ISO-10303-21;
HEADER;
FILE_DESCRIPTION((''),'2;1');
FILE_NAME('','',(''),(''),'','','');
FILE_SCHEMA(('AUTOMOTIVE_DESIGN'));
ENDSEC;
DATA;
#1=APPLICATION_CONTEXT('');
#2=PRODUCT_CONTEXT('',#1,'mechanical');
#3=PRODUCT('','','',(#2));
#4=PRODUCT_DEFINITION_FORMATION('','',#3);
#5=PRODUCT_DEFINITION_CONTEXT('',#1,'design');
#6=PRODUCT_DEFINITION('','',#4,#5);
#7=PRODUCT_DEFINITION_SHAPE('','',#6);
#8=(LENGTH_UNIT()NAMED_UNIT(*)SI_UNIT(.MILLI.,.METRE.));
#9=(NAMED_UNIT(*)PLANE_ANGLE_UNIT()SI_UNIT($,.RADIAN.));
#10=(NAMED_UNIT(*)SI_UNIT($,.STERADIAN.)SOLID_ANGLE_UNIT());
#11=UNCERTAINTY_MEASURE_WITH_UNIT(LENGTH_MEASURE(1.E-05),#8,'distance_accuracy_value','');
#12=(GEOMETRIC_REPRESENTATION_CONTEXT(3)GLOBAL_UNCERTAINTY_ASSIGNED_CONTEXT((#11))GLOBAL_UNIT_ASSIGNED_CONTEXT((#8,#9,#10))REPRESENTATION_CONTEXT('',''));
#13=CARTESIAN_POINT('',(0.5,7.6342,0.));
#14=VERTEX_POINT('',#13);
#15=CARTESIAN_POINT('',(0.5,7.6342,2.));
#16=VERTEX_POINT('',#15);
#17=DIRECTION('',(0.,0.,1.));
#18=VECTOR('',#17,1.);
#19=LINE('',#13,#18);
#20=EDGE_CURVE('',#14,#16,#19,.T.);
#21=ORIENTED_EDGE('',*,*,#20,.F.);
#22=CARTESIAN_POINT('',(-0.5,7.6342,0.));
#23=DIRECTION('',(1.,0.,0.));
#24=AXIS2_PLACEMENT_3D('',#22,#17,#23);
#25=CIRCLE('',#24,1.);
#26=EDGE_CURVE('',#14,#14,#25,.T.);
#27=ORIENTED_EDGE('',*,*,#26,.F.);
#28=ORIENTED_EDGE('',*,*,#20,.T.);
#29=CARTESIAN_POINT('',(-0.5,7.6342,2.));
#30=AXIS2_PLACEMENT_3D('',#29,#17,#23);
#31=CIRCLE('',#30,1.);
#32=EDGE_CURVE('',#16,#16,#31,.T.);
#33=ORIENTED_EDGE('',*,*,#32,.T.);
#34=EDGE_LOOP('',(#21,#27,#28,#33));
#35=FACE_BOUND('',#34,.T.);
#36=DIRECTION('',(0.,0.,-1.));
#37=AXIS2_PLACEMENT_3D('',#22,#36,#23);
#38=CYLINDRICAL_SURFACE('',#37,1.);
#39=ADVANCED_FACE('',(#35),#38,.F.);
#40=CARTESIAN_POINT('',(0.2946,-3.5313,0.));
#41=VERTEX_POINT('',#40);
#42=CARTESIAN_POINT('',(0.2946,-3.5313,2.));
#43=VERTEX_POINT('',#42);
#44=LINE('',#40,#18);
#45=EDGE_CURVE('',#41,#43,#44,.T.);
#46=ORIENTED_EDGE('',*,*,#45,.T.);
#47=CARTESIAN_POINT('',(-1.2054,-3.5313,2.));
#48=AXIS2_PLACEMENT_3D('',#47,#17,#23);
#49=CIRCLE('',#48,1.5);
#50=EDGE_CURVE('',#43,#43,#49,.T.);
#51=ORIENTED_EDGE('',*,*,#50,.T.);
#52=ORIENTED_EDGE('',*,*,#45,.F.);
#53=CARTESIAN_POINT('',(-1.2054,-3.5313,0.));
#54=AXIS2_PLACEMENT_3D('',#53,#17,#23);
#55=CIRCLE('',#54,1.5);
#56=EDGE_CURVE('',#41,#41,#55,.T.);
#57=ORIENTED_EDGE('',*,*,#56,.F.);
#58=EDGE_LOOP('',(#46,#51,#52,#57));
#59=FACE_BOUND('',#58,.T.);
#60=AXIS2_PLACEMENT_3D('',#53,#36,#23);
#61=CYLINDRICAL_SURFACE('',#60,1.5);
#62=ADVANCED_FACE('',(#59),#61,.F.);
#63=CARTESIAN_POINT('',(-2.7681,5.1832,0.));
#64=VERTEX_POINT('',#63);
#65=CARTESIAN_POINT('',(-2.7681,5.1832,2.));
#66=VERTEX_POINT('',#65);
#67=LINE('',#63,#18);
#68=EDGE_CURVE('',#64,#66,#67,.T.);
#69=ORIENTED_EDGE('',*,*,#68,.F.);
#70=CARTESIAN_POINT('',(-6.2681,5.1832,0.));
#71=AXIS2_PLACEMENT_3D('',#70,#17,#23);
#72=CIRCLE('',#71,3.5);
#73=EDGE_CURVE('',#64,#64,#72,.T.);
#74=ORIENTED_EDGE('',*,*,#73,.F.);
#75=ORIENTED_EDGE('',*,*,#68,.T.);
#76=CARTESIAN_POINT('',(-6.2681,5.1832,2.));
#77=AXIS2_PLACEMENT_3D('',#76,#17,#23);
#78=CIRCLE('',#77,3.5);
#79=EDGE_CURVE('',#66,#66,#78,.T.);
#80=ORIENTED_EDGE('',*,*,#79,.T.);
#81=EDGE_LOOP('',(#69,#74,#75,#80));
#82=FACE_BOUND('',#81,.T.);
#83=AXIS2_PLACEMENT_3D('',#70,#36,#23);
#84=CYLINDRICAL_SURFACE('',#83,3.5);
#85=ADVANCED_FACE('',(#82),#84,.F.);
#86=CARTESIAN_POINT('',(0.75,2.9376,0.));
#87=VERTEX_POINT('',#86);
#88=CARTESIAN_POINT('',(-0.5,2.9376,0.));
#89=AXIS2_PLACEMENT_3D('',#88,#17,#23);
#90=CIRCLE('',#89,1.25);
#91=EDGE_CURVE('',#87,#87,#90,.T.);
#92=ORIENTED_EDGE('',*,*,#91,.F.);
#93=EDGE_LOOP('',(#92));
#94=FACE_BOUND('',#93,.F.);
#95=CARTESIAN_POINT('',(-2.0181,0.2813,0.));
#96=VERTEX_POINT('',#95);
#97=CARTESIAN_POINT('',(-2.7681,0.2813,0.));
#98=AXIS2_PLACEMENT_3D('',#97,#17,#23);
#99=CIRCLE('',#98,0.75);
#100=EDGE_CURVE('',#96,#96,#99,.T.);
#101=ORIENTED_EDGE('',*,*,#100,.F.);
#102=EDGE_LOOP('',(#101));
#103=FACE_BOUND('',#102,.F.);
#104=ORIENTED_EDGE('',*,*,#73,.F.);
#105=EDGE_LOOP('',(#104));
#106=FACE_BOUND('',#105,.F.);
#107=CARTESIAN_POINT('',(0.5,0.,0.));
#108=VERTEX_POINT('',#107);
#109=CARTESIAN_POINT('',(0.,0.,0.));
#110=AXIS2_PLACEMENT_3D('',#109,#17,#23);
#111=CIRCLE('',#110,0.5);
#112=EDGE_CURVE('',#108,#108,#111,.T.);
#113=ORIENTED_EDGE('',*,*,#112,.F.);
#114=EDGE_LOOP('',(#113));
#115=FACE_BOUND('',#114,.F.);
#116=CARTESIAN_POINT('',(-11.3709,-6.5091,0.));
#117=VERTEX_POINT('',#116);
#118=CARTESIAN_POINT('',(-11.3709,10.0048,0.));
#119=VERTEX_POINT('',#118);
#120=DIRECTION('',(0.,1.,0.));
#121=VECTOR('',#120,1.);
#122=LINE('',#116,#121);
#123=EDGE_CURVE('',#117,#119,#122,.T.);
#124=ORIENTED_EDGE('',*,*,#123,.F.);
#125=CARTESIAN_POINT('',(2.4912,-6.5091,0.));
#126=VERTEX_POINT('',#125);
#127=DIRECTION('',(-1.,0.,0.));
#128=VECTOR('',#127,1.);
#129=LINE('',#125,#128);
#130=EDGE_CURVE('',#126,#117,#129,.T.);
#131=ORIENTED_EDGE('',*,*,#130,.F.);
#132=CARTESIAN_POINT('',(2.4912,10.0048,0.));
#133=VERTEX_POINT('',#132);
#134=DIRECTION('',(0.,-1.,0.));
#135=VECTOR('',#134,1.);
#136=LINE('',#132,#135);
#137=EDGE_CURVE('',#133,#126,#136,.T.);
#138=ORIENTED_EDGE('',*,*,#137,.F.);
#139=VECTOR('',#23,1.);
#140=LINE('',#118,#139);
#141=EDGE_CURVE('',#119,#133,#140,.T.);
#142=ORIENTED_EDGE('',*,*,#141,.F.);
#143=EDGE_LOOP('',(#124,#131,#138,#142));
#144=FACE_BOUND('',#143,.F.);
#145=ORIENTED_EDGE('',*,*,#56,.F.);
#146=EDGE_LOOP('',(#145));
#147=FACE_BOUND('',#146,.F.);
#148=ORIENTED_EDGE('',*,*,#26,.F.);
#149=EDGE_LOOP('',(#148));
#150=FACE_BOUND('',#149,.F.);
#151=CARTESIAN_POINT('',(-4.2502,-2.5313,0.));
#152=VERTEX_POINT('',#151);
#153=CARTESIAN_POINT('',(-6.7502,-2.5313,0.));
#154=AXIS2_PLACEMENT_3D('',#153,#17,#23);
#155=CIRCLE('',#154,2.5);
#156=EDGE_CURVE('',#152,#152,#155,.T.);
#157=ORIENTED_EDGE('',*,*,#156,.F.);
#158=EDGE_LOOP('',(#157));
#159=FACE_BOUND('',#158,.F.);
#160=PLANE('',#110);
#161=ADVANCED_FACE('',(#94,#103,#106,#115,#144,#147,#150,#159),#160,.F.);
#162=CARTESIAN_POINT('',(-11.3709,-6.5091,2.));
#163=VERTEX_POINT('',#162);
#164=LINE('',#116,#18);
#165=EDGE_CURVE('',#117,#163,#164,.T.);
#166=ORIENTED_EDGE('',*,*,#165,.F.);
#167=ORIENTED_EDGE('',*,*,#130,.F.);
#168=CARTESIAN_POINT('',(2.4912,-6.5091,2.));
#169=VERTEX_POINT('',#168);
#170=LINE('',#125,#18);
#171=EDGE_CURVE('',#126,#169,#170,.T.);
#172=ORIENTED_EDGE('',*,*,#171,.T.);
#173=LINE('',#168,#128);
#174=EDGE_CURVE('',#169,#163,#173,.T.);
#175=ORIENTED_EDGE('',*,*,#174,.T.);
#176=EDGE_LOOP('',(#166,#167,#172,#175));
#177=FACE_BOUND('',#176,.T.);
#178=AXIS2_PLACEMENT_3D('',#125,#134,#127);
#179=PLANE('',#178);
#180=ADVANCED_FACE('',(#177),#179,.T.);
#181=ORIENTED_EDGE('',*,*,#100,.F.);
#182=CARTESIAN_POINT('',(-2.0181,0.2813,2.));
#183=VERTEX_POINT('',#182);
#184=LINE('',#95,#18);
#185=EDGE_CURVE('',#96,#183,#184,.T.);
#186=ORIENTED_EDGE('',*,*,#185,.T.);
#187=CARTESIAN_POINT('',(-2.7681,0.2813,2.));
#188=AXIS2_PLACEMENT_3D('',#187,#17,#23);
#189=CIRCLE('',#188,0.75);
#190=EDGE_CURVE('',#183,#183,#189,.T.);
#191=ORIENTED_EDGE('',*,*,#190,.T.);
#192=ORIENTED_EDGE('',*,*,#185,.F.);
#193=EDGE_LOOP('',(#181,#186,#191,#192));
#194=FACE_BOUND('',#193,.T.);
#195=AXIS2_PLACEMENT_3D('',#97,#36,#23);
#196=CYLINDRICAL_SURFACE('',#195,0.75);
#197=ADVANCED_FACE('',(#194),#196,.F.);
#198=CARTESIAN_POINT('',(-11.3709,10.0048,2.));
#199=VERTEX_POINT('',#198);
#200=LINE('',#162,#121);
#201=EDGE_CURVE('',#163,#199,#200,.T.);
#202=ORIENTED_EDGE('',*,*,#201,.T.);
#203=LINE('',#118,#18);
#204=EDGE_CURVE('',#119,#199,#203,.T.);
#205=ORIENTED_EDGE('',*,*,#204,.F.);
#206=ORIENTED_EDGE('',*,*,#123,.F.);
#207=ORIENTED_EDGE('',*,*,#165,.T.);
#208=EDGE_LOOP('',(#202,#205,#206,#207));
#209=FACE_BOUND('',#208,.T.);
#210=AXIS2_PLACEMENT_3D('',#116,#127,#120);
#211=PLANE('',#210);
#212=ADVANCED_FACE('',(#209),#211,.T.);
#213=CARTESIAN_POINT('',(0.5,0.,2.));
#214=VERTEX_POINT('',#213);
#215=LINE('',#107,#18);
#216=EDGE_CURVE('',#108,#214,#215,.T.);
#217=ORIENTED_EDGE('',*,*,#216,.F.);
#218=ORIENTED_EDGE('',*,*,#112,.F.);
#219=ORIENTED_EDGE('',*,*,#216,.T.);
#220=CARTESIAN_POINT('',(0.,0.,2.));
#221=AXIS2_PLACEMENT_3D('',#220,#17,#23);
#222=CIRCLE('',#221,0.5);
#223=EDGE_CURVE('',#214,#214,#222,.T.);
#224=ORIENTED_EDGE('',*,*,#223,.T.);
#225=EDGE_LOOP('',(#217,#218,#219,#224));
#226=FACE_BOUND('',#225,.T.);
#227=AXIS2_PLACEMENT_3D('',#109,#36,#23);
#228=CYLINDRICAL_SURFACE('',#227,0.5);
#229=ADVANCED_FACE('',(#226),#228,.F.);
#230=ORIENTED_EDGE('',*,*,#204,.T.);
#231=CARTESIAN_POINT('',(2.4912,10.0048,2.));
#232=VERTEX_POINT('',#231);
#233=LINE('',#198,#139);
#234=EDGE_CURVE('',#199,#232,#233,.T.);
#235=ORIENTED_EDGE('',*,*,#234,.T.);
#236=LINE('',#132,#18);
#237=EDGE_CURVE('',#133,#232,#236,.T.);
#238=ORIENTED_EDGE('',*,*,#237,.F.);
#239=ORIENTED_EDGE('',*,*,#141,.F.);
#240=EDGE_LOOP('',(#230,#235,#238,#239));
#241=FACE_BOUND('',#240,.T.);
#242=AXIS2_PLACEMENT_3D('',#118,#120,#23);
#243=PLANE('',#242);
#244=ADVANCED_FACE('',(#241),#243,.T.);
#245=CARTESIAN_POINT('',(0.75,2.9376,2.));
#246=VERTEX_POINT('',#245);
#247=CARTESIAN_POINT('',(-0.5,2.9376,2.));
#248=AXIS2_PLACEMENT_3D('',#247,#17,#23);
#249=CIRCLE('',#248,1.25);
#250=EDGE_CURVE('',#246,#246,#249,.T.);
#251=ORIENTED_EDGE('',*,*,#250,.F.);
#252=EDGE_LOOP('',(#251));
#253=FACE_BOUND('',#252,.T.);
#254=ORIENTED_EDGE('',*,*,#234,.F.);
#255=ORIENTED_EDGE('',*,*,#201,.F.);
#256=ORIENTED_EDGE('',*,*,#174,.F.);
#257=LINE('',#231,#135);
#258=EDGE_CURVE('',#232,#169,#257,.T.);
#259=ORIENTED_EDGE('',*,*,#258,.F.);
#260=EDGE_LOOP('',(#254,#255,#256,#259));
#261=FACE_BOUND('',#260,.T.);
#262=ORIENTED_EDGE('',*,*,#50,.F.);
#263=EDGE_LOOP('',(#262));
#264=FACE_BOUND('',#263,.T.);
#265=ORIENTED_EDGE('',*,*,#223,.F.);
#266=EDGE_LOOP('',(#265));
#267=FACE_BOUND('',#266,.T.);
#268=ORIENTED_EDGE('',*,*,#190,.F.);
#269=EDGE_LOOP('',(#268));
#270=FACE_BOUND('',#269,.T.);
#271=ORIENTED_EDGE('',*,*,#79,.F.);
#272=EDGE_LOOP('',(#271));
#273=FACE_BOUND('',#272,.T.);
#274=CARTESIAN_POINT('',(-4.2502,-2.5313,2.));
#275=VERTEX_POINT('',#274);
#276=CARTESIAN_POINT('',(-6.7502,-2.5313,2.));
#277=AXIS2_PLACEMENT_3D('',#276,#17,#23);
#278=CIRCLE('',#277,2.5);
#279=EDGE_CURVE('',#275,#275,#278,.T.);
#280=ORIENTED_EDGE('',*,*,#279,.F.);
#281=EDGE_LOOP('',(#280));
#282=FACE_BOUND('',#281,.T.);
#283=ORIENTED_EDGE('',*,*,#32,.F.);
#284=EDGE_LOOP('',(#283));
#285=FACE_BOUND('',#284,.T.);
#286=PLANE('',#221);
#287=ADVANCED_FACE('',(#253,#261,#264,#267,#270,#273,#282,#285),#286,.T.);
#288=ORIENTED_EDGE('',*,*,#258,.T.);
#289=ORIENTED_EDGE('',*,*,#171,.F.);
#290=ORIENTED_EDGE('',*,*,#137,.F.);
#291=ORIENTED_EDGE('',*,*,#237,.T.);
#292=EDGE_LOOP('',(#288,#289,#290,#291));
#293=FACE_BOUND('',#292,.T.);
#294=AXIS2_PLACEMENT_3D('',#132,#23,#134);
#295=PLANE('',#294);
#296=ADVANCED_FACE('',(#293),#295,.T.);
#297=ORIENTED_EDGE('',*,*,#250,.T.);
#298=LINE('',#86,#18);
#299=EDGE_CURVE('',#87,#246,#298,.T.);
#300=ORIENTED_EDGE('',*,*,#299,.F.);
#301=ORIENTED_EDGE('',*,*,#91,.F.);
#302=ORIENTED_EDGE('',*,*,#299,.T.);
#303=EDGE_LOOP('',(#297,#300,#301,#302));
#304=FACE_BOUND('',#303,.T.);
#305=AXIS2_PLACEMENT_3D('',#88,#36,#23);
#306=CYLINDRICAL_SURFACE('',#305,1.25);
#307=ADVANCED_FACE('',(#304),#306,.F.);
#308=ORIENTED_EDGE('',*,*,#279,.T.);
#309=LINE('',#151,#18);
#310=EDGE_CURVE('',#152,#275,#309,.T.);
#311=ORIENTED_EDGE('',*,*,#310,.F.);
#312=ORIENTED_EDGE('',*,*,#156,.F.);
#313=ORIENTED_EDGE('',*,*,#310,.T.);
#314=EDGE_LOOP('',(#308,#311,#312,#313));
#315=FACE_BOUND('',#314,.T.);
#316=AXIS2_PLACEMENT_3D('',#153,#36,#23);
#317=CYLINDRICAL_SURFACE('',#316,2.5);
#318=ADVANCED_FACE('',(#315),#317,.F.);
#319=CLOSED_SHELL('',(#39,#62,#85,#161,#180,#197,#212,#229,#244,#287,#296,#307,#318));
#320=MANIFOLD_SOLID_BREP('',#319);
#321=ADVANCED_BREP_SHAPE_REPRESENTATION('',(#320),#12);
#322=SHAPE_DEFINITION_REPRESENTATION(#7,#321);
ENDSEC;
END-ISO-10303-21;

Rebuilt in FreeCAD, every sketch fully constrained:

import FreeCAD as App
import Part
import Sketcher
from FreeCAD import Vector

doc = App.newDocument("Part")
body = doc.addObject("PartDesign::Body", "Body")

# Sketch on XY plane
sketch1 = doc.addObject("Sketcher::SketchObject", "Sketch")
body.addObject(sketch1)
sketch1.AttachmentSupport = (doc.XY_Plane, [""])
sketch1.MapMode = "FlatFace"
sketch1.addGeometry(Part.LineSegment(Vector(-11.4, -6.5, 0), Vector(2.5, -6.5, 0)), False)
sketch1.addGeometry(Part.LineSegment(Vector(2.5, -6.5, 0), Vector(2.5, 10, 0)), False)
sketch1.addGeometry(Part.LineSegment(Vector(2.5, 10, 0), Vector(-11.4, 10, 0)), False)
sketch1.addGeometry(Part.LineSegment(Vector(-11.4, 10, 0), Vector(-11.4, -6.5, 0)), False)
sketch1.addGeometry(Part.Circle(Vector(-6.8, -2.5, 0), Vector(0, 0, 1), 2.5), False)
sketch1.addGeometry(Part.Circle(Vector(-1.2, -3.5, 0), Vector(0, 0, 1), 1.5), False)
sketch1.addGeometry(Part.Circle(Vector(-2.8, 0.3, 0), Vector(0, 0, 1), 0.8), False)
sketch1.addGeometry(Part.Circle(Vector(0, 0, 0), Vector(0, 0, 1), 0.5), False)
sketch1.addGeometry(Part.Circle(Vector(-6.3, 5.2, 0), Vector(0, 0, 1), 3.5), False)
sketch1.addGeometry(Part.Circle(Vector(-0.5, 2.9, 0), Vector(0, 0, 1), 1.2), False)
sketch1.addGeometry(Part.Circle(Vector(-0.5, 7.6, 0), Vector(0, 0, 1), 1), False)
sketch1.addConstraint(Sketcher.Constraint("Coincident", 0, 2, 1, 1))
sketch1.addConstraint(Sketcher.Constraint("Coincident", 1, 2, 2, 1))
sketch1.addConstraint(Sketcher.Constraint("Coincident", 2, 2, 3, 1))
sketch1.addConstraint(Sketcher.Constraint("Coincident", 3, 2, 0, 1))
sketch1.addConstraint(Sketcher.Constraint("Horizontal", 0))
sketch1.addConstraint(Sketcher.Constraint("Vertical", 1))
sketch1.addConstraint(Sketcher.Constraint("Horizontal", 2))
sketch1.addConstraint(Sketcher.Constraint("Vertical", 3))
sketch1.addConstraint(Sketcher.Constraint("Coincident", 7, 3, -1, 1))
sketch1.addConstraint(Sketcher.Constraint("Vertical", 9, 3, 10, 3))
sketch1.addConstraint(Sketcher.Constraint("Diameter", 4, 5.0))
sketch1.addConstraint(Sketcher.Constraint("Diameter", 5, 3.0))
sketch1.addConstraint(Sketcher.Constraint("Diameter", 7, 1.0))
sketch1.addConstraint(Sketcher.Constraint("Diameter", 8, 7.0))
sketch1.addConstraint(Sketcher.Constraint("Diameter", 10, 2.0))
sketch1.addConstraint(Sketcher.Constraint("Diameter", 6, 1.5))
sketch1.addConstraint(Sketcher.Constraint("Diameter", 9, 2.5))
sketch1.addConstraint(Sketcher.Constraint("DistanceY", 5, 3, 4, 3, 1.0))
sketch1.addConstraint(Sketcher.Constraint("DistanceX", 9, 3, -1, 1, 0.5))
sketch1.addConstraint(Sketcher.Constraint("DistanceX", 8, 3, 6, 3, 3.5))
sketch1.addConstraint(Sketcher.Constraint("DistanceX", 0, 1, 0, 2, 13.862))
sketch1.addConstraint(Sketcher.Constraint("DistanceY", 1, 1, 1, 2, 16.514))
sketch1.addConstraint(Sketcher.Constraint("DistanceX", 6, 3, -1, 1, 2.768))
sketch1.addConstraint(Sketcher.Constraint("DistanceY", 0, 2, -1, 1, 6.509))
sketch1.addConstraint(Sketcher.Constraint("DistanceX", 2, 2, -1, 1, 11.371))
sketch1.addConstraint(Sketcher.Constraint("DistanceX", 4, 3, 6, 3, 3.982))
sketch1.addConstraint(Sketcher.Constraint("DistanceY", 6, 3, 8, 3, 4.902))
sketch1.addConstraint(Sketcher.Constraint("DistanceY", 5, 3, 9, 3, 6.469))
sketch1.addConstraint(Sketcher.Constraint("DistanceY", 8, 3, 10, 3, 2.451))
sketch1.addConstraint(Sketcher.Constraint("DistanceY", 4, 3, 2, 2, 12.536))
sketch1.addConstraint(Sketcher.Constraint("DistanceX", 5, 3, -1, 1, 1.2054))
sketch1.addConstraint(Sketcher.Constraint("DistanceY", -1, 1, 6, 3, 0.2813))
pad1 = doc.addObject("PartDesign::Pad", "Pad")
body.addObject(pad1)
pad1.Profile = sketch1
pad1.Length = 2

doc.recompute()
